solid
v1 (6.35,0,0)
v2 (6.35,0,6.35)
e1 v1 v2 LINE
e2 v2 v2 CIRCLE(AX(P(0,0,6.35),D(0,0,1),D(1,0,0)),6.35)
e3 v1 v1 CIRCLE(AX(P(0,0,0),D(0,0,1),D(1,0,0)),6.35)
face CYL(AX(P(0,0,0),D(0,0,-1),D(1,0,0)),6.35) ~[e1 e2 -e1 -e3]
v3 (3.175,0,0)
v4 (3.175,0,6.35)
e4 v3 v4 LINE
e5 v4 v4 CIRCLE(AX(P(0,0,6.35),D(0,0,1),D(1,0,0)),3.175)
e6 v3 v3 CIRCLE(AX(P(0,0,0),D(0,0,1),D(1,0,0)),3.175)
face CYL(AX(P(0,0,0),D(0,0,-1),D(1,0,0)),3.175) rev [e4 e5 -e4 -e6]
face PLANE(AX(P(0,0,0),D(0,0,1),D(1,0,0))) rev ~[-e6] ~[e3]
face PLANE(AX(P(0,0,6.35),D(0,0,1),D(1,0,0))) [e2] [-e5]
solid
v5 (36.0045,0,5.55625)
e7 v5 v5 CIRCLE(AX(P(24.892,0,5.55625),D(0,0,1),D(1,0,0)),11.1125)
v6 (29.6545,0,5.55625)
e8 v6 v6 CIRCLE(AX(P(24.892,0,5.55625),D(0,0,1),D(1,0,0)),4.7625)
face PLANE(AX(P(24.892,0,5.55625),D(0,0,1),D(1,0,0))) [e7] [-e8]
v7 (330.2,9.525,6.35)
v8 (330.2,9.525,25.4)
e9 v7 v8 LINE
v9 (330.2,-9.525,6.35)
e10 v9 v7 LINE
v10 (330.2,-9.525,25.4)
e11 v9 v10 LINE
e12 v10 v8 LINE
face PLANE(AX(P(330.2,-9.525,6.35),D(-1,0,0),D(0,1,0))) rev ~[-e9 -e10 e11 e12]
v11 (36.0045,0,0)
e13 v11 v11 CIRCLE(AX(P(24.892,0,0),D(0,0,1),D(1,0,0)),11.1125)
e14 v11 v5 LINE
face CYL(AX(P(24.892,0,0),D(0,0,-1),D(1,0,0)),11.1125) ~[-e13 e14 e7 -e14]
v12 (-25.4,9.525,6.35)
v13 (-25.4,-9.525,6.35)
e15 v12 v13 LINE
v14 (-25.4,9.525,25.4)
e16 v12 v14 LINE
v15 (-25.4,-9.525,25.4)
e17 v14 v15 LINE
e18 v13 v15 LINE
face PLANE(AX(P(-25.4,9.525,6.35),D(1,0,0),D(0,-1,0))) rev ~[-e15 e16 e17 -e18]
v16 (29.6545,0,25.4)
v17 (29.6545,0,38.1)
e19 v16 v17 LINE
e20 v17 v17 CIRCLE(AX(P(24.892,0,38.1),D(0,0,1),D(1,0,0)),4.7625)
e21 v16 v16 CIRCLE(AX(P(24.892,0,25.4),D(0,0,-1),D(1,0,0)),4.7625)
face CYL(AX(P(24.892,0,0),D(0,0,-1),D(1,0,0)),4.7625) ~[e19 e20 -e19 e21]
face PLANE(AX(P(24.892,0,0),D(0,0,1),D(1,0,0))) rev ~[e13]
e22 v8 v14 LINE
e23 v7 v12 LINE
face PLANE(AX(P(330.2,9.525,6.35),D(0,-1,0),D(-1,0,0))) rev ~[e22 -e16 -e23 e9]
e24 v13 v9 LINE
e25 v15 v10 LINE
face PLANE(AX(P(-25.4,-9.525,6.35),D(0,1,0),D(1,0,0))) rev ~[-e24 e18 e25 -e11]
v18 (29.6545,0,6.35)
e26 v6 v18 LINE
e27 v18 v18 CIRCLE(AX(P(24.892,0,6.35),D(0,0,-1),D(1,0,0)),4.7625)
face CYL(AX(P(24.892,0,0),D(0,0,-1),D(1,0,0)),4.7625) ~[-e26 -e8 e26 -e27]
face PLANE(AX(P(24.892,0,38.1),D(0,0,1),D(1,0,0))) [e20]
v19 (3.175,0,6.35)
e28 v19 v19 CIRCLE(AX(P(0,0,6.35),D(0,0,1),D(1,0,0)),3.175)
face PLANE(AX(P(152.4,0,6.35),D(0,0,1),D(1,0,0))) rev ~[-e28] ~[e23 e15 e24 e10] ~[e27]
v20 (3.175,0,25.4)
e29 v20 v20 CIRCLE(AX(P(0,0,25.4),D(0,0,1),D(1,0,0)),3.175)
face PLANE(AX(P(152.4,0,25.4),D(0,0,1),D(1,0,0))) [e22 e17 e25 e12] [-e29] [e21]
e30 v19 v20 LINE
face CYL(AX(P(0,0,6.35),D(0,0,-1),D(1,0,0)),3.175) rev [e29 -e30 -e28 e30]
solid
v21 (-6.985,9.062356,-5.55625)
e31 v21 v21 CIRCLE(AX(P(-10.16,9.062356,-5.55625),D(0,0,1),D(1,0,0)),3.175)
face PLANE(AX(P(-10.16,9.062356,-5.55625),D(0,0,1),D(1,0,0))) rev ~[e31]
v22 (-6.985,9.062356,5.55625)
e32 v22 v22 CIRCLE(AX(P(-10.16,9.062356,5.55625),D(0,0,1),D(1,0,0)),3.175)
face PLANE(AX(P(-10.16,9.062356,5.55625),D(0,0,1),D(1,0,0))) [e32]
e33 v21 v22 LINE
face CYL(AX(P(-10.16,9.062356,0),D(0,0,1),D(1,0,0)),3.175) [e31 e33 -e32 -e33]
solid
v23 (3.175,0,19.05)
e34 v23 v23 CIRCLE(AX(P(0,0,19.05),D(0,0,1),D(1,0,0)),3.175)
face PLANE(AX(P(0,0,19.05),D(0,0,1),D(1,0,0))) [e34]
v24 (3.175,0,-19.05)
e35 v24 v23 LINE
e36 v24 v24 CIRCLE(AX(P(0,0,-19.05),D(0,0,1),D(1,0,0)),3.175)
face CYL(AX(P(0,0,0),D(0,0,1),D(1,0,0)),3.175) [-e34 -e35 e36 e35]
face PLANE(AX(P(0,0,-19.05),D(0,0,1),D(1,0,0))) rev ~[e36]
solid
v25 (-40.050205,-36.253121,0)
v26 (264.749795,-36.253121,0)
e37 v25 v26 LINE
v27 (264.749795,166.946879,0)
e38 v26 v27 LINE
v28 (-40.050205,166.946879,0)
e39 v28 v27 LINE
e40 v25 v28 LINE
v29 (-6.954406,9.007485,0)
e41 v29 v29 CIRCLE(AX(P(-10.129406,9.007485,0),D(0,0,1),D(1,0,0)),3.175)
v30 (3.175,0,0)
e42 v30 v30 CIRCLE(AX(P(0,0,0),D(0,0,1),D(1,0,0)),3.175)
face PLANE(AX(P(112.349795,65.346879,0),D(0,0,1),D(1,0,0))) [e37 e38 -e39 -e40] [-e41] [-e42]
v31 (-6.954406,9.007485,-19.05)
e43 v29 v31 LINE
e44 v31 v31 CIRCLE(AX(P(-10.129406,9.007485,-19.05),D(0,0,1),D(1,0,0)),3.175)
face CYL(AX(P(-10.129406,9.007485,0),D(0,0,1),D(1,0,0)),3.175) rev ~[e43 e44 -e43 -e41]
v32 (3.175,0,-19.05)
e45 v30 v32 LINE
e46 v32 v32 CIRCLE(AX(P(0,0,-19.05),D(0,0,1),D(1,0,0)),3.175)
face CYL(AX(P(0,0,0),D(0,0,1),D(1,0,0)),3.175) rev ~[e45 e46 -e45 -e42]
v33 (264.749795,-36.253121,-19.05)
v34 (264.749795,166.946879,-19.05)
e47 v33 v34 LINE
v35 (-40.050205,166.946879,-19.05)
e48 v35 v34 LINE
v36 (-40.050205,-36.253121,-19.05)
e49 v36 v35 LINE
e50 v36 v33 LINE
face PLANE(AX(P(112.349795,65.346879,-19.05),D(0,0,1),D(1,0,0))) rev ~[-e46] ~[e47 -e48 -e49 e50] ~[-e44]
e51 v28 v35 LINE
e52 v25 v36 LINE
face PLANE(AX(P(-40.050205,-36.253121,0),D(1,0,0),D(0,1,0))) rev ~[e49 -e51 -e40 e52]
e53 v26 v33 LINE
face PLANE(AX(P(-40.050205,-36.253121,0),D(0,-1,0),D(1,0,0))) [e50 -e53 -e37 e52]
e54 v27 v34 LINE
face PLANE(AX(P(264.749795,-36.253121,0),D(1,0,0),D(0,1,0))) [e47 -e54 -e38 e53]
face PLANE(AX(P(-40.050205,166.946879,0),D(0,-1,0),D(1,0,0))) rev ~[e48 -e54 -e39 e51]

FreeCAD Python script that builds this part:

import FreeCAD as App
import Part
import Sketcher
from FreeCAD import Vector
Q = App.Units.Quantity


def add_polygon(sketch, points):
    """Adds a closed chain of lines whose ends are joined by coincident constraints."""
    first, n = sketch.GeometryCount, len(points)
    for a, b in zip(points, points[1:] + points[:1]):
        sketch.addGeometry(Part.LineSegment(App.Vector(*a, 0), App.Vector(*b, 0)), False)
    for i in range(n):
        sketch.addConstraint(Sketcher.Constraint("Coincident", first + i, 2, first + (i + 1) % n, 1))

doc = App.newDocument("Part")
body = doc.addObject("PartDesign::Body", "Body")

# Sketch on XY plane
sketch1 = body.newObject("Sketcher::SketchObject", "Sketch")
sketch1.AttachmentSupport = (doc.getObject("XY_Plane"), [""])
sketch1.MapMode = "FlatFace"
sketch1.addGeometry(Part.Circle(Vector(0, 0, 0), Vector(0, 0, 1), 3.2), False)
sketch1.addConstraint([
    Sketcher.Constraint("Coincident", 0, 3, -1, 1),
    Sketcher.Constraint("Diameter", 0, Q("0.25 in")),
])
pad1 = body.newObject("PartDesign::Pad", "Pad")
pad1.Profile = sketch1
pad1.Length = Q("1.5 in")
pad1.Midplane = True
body2 = doc.addObject("PartDesign::Body", "Body001")

# Sketch on XY plane
sketch2 = body2.newObject("Sketcher::SketchObject", "Sketch001")
sketch2.AttachmentSupport = (doc.getObject("XY_Plane001"), [""])
sketch2.MapMode = "FlatFace"
sketch2.addGeometry(Part.Circle(Vector(-10.2, 9.1, 0), Vector(0, 0, 1), 3.2), False)
sketch2.addConstraint([
    Sketcher.Constraint("Diameter", 0, Q("0.25 in")),
    Sketcher.Constraint("DistanceX", 0, 3, -1, 1, Q("0.4 in")),
    Sketcher.Constraint("DistanceY", -1, 1, 0, 3, 9.062356),
])
pad2 = body2.newObject("PartDesign::Pad", "Pad001")
pad2.Profile = sketch2
pad2.Length = Q("0.4375 in")
pad2.Midplane = True
body3 = doc.addObject("PartDesign::Body", "Body002")

# Sketch on XY plane
sketch3 = body3.newObject("Sketcher::SketchObject", "Sketch002")
sketch3.AttachmentSupport = (doc.getObject("XY_Plane002"), [""])
sketch3.MapMode = "FlatFace"
sketch3.addGeometry([
    Part.Circle(Vector(0, 0, 0), Vector(0, 0, 1), 6.3),
    Part.Circle(Vector(0, 0, 0), Vector(0, 0, 1), 3.2),
], False)
sketch3.addConstraint([
    Sketcher.Constraint("Coincident", 0, 3, -1, 1),
    Sketcher.Constraint("Coincident", 1, 3, -1, 1),
    Sketcher.Constraint("Diameter", 0, Q("0.5 in")),
    Sketcher.Constraint("Diameter", 1, Q("0.25 in")),
])
pad3 = body3.newObject("PartDesign::Pad", "Pad002")
pad3.Profile = sketch3
pad3.Length = Q("0.25 in")
body4 = doc.addObject("PartDesign::Body", "Body003")

# Sketch on XY plane
sketch4 = body4.newObject("Sketcher::SketchObject", "Sketch003")
sketch4.AttachmentSupport = (doc.getObject("XY_Plane003"), [""])
sketch4.MapMode = "FlatFace"
sketch4.addGeometry([
    Part.Circle(Vector(24.9, 0, 0), Vector(0, 0, 1), 11.1),
    Part.Circle(Vector(24.9, 0, 0), Vector(0, 0, 1), 4.8),
], False)
sketch4.addConstraint([
    Sketcher.Constraint("Coincident", 1, 3, 0, 3),
    Sketcher.Constraint("PointOnObject", 0, 3, -1),
    Sketcher.Constraint("Diameter", 0, Q("0.875 in")),
    Sketcher.Constraint("Diameter", 1, Q("0.375 in")),
    Sketcher.Constraint("DistanceX", -1, 1, 0, 3, Q("0.98 in")),
])
pad4 = body4.newObject("PartDesign::Pad", "Pad003")
pad4.Profile = sketch4
pad4.Length = Q("0.21875 in")

# Sketch on XY plane
sketch5 = body4.newObject("Sketcher::SketchObject", "Sketch004")
sketch5.AttachmentSupport = (doc.getObject("XY_Plane003"), [""])
sketch5.MapMode = "FlatFace"
sketch5.addGeometry(Part.Circle(Vector(24.9, 0, 0), Vector(0, 0, 1), 4.8), False)
sketch5.addConstraint([
    Sketcher.Constraint("PointOnObject", 0, 3, -1),
    Sketcher.Constraint("Diameter", 0, Q("0.375 in")),
    Sketcher.Constraint("DistanceX", -1, 1, 0, 3, Q("0.98 in")),
])
pad5 = body4.newObject("PartDesign::Pad", "Pad004")
pad5.Profile = sketch5
pad5.Length = Q("1.5 in")

# Sketch on XY plane
sketch6 = body4.newObject("Sketcher::SketchObject", "Sketch005")
sketch6.AttachmentSupport = (doc.getObject("XY_Plane003"), [""])
sketch6.MapMode = "FlatFace"
sketch6.AttachmentOffset = App.Placement(Vector(0, 0, 0.25 * 25.4), App.Rotation())
add_polygon(sketch6, [(-25.4, 9.5), (-25.4, -9.5), (330.2, -9.5), (330.2, 9.5)])  # lines 0-3
sketch6.addGeometry(Part.Circle(Vector(0, 0, 0), Vector(0, 0, 1), 3.2), False)  # 4
sketch6.addConstraint([
    Sketcher.Constraint("Vertical", 0),
    Sketcher.Constraint("Horizontal", 1),
    Sketcher.Constraint("Vertical", 2),
    Sketcher.Constraint("Horizontal", 3),
    Sketcher.Constraint("Coincident", 4, 3, -1, 1),
    Sketcher.Constraint("Diameter", 4, Q("0.25 in")),
    Sketcher.Constraint("DistanceX", 1, 1, 1, 2, Q("14 in")),
    Sketcher.Constraint("DistanceX", 0, 2, -1, 1, Q("1 in")),
    Sketcher.Constraint("DistanceY", 0, 2, 0, 1, Q("0.75 in")),
    Sketcher.Constraint("DistanceY", 0, 2, -1, 1, Q("0.375 in")),
])
pad6 = body4.newObject("PartDesign::Pad", "Pad005")
pad6.Profile = sketch6
pad6.Length = Q("0.75 in")
body5 = doc.addObject("PartDesign::Body", "Body004")

# Sketch on XY plane
sketch7 = body5.newObject("Sketcher::SketchObject", "Sketch006")
sketch7.AttachmentSupport = (doc.getObject("XY_Plane004"), [""])
sketch7.MapMode = "FlatFace"
add_polygon(sketch7, [(-40.1, 166.9), (-40.1, -36.3), (264.7, -36.3), (264.7, 166.9)])  # lines 0-3
sketch7.addGeometry(Part.Circle(Vector(0, 0, 0), Vector(0, 0, 1), 3.2), False)  # 4
sketch7.addGeometry(Part.Circle(Vector(-10.1, 9, 0), Vector(0, 0, 1), 3.2), False)  # 5
sketch7.addConstraint([
    Sketcher.Constraint("Vertical", 0),
    Sketcher.Constraint("Horizontal", 1),
    Sketcher.Constraint("Vertical", 2),
    Sketcher.Constraint("Horizontal", 3),
    Sketcher.Constraint("Coincident", 4, 3, -1, 1),
    Sketcher.Constraint("Equal", 4, 5),
    Sketcher.Constraint("Diameter", 4, Q("0.25 in")),
    Sketcher.Constraint("DistanceX", 1, 1, 1, 2, Q("12 in")),
    Sketcher.Constraint("DistanceY", 0, 2, 0, 1, Q("8 in")),
    Sketcher.Constraint("DistanceX", 0, 2, 5, 3, 29.920799),
    Sketcher.Constraint("DistanceY", 0, 2, -1, 1, 36.253121),
    Sketcher.Constraint("DistanceX", 5, 3, -1, 1, 10.129406),
    Sketcher.Constraint("DistanceY", -1, 1, 5, 3, 9.007485),
])
pad7 = body5.newObject("PartDesign::Pad", "Pad006")
pad7.Profile = sketch7
pad7.Length = Q("0.75 in")
pad7.Reversed = True

doc.recompute()
